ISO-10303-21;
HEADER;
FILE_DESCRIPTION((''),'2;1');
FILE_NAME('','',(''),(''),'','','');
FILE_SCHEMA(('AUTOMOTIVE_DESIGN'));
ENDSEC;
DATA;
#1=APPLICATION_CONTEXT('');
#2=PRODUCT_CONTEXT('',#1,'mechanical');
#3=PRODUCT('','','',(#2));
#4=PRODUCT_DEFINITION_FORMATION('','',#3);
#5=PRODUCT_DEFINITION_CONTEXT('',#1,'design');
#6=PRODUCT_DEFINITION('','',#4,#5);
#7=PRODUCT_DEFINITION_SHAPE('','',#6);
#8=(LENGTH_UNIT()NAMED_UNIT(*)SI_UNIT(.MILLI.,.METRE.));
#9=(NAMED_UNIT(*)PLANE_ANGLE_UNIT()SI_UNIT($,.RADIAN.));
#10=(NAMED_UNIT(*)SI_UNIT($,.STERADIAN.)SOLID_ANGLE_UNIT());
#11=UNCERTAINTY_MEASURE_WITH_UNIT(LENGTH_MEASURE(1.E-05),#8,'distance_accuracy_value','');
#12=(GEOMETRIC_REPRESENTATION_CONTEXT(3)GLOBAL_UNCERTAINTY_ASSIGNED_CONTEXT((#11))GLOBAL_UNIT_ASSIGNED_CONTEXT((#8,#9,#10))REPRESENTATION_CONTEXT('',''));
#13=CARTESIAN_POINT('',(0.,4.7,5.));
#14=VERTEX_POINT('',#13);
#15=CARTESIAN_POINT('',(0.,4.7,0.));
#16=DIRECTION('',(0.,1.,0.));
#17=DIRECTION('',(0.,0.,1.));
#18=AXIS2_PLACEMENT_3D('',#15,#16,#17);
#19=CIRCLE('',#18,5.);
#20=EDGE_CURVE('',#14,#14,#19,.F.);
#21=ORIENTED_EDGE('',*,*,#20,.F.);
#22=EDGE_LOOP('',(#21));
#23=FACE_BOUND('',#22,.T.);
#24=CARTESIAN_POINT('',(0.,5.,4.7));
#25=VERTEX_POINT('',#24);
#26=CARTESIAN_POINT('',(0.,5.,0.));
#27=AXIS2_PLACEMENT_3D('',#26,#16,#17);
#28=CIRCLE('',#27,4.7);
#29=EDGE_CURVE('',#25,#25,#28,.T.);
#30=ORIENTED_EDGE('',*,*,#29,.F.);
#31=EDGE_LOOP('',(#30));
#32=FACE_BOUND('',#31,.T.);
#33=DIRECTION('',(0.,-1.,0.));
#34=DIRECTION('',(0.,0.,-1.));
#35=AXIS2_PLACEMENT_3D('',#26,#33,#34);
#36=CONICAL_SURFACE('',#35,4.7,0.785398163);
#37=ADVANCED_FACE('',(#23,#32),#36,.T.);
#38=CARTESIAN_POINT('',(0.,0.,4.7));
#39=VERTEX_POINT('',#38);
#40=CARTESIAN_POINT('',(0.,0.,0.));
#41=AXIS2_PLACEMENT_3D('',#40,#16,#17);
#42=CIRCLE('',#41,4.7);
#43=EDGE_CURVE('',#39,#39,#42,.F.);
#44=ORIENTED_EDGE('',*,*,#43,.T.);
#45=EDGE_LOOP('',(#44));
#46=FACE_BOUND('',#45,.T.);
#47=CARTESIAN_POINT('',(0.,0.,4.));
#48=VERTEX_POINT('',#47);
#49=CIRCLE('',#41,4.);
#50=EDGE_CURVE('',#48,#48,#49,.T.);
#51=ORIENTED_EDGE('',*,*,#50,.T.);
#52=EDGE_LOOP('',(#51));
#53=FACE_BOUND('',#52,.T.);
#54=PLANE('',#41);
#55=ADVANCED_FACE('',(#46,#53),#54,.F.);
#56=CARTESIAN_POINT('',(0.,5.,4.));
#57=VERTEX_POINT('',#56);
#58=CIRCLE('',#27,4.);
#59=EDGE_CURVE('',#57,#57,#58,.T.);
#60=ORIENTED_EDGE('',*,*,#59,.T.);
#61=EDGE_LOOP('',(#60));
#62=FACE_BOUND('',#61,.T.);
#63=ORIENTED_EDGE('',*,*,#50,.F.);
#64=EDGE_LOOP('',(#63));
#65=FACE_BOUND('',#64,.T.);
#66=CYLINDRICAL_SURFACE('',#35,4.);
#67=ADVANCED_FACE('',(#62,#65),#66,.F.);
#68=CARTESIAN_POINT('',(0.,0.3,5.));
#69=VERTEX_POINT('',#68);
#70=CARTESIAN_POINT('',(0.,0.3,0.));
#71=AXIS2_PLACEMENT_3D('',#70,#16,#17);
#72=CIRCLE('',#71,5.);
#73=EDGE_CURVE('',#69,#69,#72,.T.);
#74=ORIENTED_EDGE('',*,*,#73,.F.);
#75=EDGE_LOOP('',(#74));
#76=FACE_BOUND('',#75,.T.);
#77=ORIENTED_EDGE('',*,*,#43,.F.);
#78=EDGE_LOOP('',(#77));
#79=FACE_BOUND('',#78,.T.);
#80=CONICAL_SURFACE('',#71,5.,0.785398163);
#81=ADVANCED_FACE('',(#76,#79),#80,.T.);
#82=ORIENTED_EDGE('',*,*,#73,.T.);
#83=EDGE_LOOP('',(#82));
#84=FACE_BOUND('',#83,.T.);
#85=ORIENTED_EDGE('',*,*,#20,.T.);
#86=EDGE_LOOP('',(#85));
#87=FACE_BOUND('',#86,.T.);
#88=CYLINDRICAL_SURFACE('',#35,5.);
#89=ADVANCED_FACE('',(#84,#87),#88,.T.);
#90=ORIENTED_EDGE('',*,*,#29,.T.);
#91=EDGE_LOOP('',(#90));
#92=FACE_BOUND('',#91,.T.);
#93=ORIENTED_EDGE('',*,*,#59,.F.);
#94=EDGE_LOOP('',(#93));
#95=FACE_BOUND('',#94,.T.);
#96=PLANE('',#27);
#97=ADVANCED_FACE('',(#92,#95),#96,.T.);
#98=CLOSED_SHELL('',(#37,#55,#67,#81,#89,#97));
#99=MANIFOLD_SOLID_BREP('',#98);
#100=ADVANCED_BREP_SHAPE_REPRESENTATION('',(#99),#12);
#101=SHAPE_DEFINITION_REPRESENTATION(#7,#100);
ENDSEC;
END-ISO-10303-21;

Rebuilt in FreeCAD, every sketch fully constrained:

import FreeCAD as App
import Part
import Sketcher
Q = App.Units.Quantity


def edges_at(feature, points):
    """Names of the edges that pass closest to the given points."""
    edges = feature.Shape.Edges
    near = lambda p: min(range(len(edges)), key=lambda i: edges[i].distToShape(Part.Vertex(*p))[0])
    return sorted({f"Edge{near(p) + 1}" for p in points})

doc = App.newDocument("Part")
params = doc.addObject("Spreadsheet::Sheet", "Params")
for row, (alias, value) in enumerate([
    ("sketch1_diameter", "10 mm"),
    ("sketch1_diameter2", "8 mm"),
    ("pad1_length", "5 mm"),
    ("chamfer_size", "0.3 mm"),
], start=1):
    params.set(f"A{row}", alias)
    params.set(f"B{row}", "=" + value)
    params.setAlias(f"B{row}", alias)

body = doc.addObject("PartDesign::Body", "Body")

sketch1 = body.newObject("Sketcher::SketchObject", "Sketch")
sketch1.AttachmentSupport = (doc.getObject("XZ_Plane"), [""])
sketch1.MapMode = "FlatFace"
sketch1.addGeometry(Part.Circle(App.Vector(0, 0, 0), App.Vector(0, 0, 1), 5), False)
sketch1.addGeometry(Part.Circle(App.Vector(0, 0, 0), App.Vector(0, 0, 1), 4), False)
sketch1.addConstraint(Sketcher.Constraint("Coincident", 0, 3, -1, 1))
sketch1.addConstraint(Sketcher.Constraint("Coincident", 1, 3, -1, 1))
sketch1.addConstraint(Sketcher.Constraint("Diameter", 0, Q("10 mm")))
sketch1.addConstraint(Sketcher.Constraint("Diameter", 1, Q("8 mm")))
sketch1.setExpression("Constraints[2]", "Params.sketch1_diameter")
sketch1.setExpression("Constraints[3]", "Params.sketch1_diameter2")
pad1 = body.newObject("PartDesign::Pad", "Pad")
pad1.Profile = sketch1
pad1.setExpression("Length", "Params.pad1_length")
pad1.Reversed = True
doc.recompute()

chamfer = body.newObject("PartDesign::Chamfer", "Chamfer")
chamfer.Base = (pad1, edges_at(pad1, [(0, 0, -5), (0, 5, -5)]))
chamfer.setExpression("Size", "Params.chamfer_size")

doc.recompute()
